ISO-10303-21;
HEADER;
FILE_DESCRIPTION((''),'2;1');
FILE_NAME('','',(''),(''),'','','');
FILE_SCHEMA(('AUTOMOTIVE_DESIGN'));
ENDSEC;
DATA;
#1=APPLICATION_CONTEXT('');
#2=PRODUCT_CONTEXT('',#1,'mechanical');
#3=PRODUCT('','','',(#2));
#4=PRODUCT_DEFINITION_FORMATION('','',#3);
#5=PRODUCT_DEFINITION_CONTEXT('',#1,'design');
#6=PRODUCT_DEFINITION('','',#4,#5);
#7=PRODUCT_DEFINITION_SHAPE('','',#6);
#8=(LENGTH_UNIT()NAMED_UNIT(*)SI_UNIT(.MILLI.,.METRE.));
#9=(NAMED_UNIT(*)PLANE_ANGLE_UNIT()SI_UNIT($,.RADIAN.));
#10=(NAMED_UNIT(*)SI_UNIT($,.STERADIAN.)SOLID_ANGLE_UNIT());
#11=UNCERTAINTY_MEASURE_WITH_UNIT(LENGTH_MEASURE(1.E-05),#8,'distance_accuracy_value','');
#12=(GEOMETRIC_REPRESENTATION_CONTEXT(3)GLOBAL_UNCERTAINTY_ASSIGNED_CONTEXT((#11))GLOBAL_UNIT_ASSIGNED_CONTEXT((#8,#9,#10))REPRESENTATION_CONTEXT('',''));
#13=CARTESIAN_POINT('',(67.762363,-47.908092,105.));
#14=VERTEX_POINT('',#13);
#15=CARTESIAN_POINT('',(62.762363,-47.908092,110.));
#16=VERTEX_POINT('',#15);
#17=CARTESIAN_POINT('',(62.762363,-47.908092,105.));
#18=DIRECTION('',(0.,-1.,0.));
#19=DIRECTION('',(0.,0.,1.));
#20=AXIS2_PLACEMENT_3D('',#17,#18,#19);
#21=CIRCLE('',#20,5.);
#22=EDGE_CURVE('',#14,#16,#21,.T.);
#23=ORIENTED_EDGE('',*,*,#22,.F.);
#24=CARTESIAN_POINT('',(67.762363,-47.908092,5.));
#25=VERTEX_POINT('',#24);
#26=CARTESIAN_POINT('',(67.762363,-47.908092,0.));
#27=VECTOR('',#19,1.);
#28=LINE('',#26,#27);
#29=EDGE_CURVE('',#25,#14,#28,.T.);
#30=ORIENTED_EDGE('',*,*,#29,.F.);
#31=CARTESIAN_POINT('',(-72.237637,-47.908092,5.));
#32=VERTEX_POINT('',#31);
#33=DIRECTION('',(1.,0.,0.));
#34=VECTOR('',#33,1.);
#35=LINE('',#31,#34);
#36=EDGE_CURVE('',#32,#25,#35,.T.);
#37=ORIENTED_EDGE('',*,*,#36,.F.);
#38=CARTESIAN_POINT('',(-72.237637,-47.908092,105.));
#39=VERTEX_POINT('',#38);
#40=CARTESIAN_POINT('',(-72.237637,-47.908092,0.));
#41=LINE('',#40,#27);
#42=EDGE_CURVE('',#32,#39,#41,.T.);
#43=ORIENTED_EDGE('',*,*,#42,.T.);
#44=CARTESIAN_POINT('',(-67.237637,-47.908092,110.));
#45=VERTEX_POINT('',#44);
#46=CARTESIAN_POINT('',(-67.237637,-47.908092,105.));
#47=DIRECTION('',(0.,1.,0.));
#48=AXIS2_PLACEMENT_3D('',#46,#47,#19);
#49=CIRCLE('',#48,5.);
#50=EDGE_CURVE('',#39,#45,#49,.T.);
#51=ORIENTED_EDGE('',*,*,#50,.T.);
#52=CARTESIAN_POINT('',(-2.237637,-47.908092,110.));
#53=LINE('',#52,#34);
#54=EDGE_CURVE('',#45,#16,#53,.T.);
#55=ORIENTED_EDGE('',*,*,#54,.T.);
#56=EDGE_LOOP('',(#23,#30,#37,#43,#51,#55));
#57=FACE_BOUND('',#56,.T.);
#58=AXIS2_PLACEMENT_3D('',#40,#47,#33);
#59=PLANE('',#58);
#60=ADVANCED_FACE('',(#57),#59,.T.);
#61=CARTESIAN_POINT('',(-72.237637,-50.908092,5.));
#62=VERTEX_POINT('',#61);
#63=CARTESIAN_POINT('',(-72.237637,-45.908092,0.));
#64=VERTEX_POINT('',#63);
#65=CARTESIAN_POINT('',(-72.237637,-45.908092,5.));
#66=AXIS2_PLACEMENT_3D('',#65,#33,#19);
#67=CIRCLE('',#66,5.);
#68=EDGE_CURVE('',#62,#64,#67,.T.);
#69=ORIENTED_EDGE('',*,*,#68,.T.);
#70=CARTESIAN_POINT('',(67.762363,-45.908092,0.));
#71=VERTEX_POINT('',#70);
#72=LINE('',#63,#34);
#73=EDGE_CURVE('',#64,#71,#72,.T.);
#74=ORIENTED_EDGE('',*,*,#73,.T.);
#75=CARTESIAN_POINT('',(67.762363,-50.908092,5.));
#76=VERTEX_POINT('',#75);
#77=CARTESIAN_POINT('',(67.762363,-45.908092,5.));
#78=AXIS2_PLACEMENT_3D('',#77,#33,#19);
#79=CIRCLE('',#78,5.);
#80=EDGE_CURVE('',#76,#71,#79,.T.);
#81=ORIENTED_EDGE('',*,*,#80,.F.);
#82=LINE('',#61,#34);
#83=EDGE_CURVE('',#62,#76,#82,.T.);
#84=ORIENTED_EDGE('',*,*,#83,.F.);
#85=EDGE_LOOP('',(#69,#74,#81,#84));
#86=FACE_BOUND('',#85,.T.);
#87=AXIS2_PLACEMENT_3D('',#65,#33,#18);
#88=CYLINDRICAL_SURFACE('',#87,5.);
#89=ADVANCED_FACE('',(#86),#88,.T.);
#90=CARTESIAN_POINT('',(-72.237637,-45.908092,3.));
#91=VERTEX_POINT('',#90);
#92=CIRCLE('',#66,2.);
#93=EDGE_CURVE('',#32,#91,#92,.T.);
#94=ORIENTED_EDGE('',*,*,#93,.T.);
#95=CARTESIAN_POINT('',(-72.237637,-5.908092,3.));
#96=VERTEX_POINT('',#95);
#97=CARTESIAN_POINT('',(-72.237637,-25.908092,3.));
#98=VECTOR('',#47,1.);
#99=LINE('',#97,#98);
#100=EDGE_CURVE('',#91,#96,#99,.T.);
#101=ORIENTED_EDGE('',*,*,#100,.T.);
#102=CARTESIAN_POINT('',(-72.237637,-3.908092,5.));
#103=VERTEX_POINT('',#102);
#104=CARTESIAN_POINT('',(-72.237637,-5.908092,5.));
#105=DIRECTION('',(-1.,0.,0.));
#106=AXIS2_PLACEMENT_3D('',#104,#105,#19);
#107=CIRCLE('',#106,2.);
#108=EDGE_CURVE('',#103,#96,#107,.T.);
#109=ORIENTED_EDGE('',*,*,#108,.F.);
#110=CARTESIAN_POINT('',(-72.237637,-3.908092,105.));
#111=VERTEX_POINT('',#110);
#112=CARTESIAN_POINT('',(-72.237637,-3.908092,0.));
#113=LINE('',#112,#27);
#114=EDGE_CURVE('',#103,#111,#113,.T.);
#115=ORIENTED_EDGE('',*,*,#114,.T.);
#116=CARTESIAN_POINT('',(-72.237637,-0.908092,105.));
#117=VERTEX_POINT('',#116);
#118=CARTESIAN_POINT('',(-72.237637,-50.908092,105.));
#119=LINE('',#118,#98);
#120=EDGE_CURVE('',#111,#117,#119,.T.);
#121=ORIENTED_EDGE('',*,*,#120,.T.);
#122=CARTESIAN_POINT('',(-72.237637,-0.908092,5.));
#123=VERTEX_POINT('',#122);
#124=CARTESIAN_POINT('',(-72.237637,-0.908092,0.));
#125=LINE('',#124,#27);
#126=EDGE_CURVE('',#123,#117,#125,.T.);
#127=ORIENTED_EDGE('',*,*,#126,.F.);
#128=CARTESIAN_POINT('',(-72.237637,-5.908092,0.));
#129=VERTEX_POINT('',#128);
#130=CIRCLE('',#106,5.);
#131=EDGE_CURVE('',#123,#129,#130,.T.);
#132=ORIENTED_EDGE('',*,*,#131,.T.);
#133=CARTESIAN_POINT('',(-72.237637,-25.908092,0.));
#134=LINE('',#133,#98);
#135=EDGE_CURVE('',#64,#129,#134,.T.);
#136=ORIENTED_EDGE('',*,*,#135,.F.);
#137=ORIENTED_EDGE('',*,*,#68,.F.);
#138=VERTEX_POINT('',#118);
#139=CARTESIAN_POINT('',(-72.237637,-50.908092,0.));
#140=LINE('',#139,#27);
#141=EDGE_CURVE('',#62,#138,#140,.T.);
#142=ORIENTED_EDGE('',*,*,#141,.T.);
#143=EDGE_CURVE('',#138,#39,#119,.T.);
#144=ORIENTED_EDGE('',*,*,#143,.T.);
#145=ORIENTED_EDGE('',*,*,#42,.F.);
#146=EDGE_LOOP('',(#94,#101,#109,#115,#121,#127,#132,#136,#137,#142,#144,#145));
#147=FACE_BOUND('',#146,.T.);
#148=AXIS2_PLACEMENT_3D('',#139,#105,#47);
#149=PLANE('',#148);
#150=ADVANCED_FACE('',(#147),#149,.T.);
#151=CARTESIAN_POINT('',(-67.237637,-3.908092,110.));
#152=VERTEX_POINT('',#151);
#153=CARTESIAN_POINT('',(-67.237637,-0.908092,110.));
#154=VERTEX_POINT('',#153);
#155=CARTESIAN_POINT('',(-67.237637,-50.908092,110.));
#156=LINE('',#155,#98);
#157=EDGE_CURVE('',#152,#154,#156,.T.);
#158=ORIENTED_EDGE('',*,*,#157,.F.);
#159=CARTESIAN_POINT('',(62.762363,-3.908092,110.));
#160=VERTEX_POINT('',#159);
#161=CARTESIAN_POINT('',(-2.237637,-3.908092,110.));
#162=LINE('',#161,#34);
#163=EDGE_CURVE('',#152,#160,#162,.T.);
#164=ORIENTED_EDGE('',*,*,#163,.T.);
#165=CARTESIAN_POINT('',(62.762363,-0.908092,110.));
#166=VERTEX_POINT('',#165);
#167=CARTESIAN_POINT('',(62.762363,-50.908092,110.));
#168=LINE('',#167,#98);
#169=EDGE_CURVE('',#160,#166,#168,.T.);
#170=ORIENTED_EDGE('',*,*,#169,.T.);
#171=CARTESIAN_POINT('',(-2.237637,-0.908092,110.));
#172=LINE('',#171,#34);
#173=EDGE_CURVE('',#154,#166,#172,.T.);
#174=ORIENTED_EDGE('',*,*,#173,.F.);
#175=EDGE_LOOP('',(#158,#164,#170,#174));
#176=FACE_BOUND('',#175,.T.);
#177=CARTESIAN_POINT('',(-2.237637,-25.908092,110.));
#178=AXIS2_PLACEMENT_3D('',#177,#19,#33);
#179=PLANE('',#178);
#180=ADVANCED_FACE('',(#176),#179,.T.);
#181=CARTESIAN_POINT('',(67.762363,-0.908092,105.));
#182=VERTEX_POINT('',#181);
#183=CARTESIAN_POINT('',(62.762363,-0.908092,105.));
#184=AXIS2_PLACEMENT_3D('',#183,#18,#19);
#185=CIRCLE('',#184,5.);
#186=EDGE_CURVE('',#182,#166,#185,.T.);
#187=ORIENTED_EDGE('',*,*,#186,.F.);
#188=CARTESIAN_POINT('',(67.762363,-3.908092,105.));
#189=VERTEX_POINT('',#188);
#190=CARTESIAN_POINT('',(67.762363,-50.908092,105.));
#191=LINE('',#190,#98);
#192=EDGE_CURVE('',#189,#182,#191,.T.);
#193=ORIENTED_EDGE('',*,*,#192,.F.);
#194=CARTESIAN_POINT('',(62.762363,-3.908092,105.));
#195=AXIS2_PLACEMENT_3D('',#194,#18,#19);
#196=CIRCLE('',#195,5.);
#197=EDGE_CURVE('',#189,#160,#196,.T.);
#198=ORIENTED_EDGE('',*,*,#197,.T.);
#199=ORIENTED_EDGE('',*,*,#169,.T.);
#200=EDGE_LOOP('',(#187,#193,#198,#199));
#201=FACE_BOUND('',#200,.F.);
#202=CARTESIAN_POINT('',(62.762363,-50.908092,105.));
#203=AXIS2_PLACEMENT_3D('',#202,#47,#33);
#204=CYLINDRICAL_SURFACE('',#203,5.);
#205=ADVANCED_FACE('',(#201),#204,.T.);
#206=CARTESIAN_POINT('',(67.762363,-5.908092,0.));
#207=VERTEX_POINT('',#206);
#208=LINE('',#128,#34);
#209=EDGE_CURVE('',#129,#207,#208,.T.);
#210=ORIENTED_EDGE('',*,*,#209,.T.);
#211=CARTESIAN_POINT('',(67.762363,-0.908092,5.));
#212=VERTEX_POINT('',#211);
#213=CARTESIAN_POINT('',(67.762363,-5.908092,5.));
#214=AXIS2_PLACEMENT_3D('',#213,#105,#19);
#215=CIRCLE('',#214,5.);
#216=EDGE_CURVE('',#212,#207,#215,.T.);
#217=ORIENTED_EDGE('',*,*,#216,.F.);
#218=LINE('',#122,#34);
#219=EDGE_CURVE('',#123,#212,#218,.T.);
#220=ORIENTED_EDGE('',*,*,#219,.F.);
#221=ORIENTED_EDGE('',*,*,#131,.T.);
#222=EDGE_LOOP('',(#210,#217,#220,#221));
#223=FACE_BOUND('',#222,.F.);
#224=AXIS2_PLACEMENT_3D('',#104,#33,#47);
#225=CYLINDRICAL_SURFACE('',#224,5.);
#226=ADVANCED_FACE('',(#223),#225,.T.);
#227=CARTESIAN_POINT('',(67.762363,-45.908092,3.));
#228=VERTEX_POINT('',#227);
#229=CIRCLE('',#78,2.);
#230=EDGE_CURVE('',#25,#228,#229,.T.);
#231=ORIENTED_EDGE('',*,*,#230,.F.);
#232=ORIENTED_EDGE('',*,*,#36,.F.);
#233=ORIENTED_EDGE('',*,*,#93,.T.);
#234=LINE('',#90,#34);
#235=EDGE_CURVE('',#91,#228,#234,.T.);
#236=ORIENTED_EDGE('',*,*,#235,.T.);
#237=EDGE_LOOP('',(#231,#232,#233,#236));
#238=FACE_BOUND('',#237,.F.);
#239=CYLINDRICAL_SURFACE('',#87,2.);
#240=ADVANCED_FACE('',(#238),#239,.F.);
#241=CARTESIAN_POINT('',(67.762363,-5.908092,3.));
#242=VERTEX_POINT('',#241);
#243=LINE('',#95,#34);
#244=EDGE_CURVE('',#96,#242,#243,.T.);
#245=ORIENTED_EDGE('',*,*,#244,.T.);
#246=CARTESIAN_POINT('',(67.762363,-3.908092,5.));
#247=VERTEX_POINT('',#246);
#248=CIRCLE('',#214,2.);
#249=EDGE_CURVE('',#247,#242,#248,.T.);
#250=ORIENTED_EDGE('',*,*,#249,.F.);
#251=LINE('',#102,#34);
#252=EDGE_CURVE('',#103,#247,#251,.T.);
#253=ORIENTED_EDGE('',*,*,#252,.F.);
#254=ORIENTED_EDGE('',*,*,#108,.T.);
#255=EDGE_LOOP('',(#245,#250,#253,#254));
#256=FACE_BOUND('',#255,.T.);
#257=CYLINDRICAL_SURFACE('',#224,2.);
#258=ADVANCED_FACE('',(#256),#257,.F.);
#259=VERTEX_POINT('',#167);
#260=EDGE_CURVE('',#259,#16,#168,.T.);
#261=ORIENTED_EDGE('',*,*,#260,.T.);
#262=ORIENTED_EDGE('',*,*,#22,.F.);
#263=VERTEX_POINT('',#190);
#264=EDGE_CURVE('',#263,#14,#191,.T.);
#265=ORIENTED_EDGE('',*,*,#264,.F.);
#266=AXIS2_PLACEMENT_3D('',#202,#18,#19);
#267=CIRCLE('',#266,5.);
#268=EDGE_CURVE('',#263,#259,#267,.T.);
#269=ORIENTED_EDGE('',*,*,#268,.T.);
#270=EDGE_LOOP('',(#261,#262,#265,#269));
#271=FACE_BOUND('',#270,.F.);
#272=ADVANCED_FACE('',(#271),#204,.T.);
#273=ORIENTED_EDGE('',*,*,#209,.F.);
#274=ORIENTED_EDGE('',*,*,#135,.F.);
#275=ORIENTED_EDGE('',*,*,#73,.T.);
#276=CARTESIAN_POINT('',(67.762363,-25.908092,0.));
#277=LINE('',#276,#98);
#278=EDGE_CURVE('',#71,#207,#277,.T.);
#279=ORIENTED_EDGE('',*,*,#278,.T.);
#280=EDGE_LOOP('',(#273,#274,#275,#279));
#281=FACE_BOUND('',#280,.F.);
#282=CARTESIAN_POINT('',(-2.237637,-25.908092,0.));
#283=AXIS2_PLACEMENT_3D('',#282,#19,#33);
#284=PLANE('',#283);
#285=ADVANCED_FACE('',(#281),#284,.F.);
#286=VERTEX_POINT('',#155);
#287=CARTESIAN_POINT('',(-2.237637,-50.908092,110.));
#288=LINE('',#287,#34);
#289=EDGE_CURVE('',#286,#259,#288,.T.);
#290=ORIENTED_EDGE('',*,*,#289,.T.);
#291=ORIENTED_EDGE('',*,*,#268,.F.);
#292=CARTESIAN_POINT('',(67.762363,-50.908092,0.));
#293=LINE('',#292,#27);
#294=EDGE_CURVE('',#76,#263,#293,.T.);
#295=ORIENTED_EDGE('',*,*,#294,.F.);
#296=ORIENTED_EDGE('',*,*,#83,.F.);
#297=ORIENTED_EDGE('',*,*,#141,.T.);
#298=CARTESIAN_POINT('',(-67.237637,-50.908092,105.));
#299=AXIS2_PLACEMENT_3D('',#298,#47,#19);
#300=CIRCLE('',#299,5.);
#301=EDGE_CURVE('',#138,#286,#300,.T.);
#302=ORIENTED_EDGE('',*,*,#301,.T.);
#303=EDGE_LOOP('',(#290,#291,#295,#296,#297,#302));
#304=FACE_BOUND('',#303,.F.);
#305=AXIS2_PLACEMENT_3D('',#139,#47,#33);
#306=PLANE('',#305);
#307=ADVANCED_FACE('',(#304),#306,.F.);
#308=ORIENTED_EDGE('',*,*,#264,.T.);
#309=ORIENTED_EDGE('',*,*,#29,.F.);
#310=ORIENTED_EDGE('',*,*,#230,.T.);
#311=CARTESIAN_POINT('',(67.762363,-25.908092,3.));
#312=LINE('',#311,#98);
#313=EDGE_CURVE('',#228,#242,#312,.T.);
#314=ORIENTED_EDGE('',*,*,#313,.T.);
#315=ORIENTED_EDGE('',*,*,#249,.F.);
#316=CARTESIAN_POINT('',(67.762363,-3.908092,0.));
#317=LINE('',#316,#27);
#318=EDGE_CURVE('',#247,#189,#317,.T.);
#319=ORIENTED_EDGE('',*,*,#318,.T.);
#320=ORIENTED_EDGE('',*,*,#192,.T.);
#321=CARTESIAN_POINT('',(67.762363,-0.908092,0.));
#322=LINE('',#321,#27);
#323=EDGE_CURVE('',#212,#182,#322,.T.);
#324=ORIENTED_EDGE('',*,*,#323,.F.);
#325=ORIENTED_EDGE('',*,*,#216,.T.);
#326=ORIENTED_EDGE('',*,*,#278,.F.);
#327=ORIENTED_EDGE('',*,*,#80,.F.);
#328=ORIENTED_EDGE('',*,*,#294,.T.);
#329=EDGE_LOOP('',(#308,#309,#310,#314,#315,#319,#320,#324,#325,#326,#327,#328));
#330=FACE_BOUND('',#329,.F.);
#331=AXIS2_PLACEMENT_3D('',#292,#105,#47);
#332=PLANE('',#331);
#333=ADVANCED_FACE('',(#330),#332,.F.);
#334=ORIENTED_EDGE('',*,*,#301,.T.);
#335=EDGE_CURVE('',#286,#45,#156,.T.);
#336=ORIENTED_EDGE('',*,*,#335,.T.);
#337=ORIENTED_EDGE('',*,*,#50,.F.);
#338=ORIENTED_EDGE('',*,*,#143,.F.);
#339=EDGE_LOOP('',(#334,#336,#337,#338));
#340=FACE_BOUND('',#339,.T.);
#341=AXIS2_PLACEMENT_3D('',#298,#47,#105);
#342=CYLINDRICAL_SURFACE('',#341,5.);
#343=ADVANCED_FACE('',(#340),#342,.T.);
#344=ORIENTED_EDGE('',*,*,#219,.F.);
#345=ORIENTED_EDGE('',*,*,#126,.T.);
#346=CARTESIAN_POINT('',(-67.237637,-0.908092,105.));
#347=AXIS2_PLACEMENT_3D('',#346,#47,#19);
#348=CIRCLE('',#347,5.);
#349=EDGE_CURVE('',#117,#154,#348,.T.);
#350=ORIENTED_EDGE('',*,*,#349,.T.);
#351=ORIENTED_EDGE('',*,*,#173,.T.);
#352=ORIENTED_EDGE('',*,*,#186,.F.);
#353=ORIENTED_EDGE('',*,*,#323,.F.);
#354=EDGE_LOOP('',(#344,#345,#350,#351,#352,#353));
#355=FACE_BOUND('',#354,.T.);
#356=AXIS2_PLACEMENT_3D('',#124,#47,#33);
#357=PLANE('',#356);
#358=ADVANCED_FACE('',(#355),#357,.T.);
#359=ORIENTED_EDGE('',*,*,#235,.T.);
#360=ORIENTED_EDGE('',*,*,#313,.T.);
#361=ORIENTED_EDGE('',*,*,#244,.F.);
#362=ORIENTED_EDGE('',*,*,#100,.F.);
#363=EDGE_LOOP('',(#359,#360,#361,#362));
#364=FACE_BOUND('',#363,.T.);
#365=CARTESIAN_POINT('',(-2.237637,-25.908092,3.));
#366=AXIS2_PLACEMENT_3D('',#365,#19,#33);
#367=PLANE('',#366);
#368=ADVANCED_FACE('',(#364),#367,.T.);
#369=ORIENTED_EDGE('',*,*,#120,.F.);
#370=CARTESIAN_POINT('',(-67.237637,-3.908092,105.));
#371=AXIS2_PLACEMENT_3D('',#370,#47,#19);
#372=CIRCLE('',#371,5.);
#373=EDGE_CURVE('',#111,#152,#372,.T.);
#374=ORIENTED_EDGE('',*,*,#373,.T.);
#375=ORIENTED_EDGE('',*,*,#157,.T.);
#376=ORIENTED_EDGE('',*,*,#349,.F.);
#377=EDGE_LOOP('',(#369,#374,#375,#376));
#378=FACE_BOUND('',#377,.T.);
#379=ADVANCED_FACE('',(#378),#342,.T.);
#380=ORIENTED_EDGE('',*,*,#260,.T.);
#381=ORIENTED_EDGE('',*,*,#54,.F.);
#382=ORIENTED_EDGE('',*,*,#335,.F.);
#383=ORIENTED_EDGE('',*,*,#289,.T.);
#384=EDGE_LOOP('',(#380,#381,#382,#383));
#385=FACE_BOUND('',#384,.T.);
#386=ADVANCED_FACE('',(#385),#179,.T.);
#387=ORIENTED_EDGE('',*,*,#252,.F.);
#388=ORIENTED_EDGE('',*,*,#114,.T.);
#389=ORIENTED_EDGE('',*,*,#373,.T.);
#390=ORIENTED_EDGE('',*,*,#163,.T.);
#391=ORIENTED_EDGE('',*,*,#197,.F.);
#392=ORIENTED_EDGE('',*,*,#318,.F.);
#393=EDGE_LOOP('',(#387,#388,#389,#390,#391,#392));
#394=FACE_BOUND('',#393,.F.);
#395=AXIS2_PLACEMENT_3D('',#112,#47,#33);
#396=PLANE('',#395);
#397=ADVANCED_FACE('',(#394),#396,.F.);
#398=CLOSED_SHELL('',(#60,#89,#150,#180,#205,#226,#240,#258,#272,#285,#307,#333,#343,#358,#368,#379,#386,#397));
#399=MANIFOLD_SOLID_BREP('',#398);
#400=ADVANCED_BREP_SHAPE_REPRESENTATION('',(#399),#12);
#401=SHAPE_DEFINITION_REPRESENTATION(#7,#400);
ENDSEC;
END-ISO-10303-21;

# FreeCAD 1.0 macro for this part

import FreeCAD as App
import Part
import Sketcher

V = App.Vector


def edges_at(feature, points):
    """Names of the edges that pass closest to the given points."""
    edges = feature.Shape.Edges
    near = lambda p: min(range(len(edges)), key=lambda i: edges[i].distToShape(Part.Vertex(*p))[0])
    return sorted({f"Edge{near(p) + 1}" for p in points})


def faces_at(feature, points):
    """Names of the faces that lie closest to the given points."""
    faces = feature.Shape.Faces
    near = lambda p: min(range(len(faces)), key=lambda i: faces[i].distToShape(Part.Vertex(*p))[0])
    return sorted({f"Face{near(p) + 1}" for p in points})

doc = App.newDocument("Part")
body = doc.addObject("PartDesign::Body", "Body")

# Sketch on XY plane
sketch1 = doc.addObject("Sketcher::SketchObject", "Sketch")
body.addObject(sketch1)
sketch1.AttachmentSupport = (doc.XY_Plane, [""])
sketch1.MapMode = "FlatFace"
sketch1.addGeometry(Part.LineSegment(V(-72, -1, 0), V(-72, -51, 0)), False)
sketch1.addGeometry(Part.LineSegment(V(-72, -51, 0), V(68, -51, 0)), False)
sketch1.addGeometry(Part.LineSegment(V(68, -51, 0), V(68, -1, 0)), False)
sketch1.addGeometry(Part.LineSegment(V(68, -1, 0), V(-72, -1, 0)), False)
sketch1.addConstraint(Sketcher.Constraint("Coincident", 0, 2, 1, 1))
sketch1.addConstraint(Sketcher.Constraint("Coincident", 1, 2, 2, 1))
sketch1.addConstraint(Sketcher.Constraint("Coincident", 2, 2, 3, 1))
sketch1.addConstraint(Sketcher.Constraint("Coincident", 3, 2, 0, 1))
sketch1.addConstraint(Sketcher.Constraint("Vertical", 0))
sketch1.addConstraint(Sketcher.Constraint("Horizontal", 1))
sketch1.addConstraint(Sketcher.Constraint("Vertical", 2))
sketch1.addConstraint(Sketcher.Constraint("Horizontal", 3))
sketch1.addConstraint(Sketcher.Constraint("DistanceX", 1, 1, 1, 2, 140.0))
sketch1.addConstraint(Sketcher.Constraint("DistanceY", 0, 2, 0, 1, 50.0))
sketch1.addConstraint(Sketcher.Constraint("DistanceY", 0, 2, -1, 1, 50.908092))
sketch1.addConstraint(Sketcher.Constraint("DistanceX", 0, 2, -1, 1, 72.237637))
pad1 = doc.addObject("PartDesign::Pad", "Pad")
body.addObject(pad1)
pad1.Profile = sketch1
pad1.Length = 110
doc.recompute()

fillet = doc.addObject("PartDesign::Fillet", "Fillet")
body.addObject(fillet)
fillet.Base = (pad1, edges_at(pad1, [
    (-72.238, -25.908, 110),
    (67.762, -25.908, 110),
    (-2.238, -50.908, 0),
    (-2.238, -0.908, 0),
]))
fillet.Radius = 5
doc.recompute()

thickness = doc.addObject("PartDesign::Thickness", "Thickness")
body.addObject(thickness)
thickness.Base = (fillet, faces_at(fillet, [
    (67.762, -25.908, 52.5),
    (66.298, -25.908, 108.536),
    (-2.238, -25.908, 110),
    (-70.773, -25.908, 108.536),
    (-72.238, -25.908, 52.5),
]))
thickness.Value = 3
thickness.Reversed = True
thickness.Join = "Arc"

doc.recompute()
